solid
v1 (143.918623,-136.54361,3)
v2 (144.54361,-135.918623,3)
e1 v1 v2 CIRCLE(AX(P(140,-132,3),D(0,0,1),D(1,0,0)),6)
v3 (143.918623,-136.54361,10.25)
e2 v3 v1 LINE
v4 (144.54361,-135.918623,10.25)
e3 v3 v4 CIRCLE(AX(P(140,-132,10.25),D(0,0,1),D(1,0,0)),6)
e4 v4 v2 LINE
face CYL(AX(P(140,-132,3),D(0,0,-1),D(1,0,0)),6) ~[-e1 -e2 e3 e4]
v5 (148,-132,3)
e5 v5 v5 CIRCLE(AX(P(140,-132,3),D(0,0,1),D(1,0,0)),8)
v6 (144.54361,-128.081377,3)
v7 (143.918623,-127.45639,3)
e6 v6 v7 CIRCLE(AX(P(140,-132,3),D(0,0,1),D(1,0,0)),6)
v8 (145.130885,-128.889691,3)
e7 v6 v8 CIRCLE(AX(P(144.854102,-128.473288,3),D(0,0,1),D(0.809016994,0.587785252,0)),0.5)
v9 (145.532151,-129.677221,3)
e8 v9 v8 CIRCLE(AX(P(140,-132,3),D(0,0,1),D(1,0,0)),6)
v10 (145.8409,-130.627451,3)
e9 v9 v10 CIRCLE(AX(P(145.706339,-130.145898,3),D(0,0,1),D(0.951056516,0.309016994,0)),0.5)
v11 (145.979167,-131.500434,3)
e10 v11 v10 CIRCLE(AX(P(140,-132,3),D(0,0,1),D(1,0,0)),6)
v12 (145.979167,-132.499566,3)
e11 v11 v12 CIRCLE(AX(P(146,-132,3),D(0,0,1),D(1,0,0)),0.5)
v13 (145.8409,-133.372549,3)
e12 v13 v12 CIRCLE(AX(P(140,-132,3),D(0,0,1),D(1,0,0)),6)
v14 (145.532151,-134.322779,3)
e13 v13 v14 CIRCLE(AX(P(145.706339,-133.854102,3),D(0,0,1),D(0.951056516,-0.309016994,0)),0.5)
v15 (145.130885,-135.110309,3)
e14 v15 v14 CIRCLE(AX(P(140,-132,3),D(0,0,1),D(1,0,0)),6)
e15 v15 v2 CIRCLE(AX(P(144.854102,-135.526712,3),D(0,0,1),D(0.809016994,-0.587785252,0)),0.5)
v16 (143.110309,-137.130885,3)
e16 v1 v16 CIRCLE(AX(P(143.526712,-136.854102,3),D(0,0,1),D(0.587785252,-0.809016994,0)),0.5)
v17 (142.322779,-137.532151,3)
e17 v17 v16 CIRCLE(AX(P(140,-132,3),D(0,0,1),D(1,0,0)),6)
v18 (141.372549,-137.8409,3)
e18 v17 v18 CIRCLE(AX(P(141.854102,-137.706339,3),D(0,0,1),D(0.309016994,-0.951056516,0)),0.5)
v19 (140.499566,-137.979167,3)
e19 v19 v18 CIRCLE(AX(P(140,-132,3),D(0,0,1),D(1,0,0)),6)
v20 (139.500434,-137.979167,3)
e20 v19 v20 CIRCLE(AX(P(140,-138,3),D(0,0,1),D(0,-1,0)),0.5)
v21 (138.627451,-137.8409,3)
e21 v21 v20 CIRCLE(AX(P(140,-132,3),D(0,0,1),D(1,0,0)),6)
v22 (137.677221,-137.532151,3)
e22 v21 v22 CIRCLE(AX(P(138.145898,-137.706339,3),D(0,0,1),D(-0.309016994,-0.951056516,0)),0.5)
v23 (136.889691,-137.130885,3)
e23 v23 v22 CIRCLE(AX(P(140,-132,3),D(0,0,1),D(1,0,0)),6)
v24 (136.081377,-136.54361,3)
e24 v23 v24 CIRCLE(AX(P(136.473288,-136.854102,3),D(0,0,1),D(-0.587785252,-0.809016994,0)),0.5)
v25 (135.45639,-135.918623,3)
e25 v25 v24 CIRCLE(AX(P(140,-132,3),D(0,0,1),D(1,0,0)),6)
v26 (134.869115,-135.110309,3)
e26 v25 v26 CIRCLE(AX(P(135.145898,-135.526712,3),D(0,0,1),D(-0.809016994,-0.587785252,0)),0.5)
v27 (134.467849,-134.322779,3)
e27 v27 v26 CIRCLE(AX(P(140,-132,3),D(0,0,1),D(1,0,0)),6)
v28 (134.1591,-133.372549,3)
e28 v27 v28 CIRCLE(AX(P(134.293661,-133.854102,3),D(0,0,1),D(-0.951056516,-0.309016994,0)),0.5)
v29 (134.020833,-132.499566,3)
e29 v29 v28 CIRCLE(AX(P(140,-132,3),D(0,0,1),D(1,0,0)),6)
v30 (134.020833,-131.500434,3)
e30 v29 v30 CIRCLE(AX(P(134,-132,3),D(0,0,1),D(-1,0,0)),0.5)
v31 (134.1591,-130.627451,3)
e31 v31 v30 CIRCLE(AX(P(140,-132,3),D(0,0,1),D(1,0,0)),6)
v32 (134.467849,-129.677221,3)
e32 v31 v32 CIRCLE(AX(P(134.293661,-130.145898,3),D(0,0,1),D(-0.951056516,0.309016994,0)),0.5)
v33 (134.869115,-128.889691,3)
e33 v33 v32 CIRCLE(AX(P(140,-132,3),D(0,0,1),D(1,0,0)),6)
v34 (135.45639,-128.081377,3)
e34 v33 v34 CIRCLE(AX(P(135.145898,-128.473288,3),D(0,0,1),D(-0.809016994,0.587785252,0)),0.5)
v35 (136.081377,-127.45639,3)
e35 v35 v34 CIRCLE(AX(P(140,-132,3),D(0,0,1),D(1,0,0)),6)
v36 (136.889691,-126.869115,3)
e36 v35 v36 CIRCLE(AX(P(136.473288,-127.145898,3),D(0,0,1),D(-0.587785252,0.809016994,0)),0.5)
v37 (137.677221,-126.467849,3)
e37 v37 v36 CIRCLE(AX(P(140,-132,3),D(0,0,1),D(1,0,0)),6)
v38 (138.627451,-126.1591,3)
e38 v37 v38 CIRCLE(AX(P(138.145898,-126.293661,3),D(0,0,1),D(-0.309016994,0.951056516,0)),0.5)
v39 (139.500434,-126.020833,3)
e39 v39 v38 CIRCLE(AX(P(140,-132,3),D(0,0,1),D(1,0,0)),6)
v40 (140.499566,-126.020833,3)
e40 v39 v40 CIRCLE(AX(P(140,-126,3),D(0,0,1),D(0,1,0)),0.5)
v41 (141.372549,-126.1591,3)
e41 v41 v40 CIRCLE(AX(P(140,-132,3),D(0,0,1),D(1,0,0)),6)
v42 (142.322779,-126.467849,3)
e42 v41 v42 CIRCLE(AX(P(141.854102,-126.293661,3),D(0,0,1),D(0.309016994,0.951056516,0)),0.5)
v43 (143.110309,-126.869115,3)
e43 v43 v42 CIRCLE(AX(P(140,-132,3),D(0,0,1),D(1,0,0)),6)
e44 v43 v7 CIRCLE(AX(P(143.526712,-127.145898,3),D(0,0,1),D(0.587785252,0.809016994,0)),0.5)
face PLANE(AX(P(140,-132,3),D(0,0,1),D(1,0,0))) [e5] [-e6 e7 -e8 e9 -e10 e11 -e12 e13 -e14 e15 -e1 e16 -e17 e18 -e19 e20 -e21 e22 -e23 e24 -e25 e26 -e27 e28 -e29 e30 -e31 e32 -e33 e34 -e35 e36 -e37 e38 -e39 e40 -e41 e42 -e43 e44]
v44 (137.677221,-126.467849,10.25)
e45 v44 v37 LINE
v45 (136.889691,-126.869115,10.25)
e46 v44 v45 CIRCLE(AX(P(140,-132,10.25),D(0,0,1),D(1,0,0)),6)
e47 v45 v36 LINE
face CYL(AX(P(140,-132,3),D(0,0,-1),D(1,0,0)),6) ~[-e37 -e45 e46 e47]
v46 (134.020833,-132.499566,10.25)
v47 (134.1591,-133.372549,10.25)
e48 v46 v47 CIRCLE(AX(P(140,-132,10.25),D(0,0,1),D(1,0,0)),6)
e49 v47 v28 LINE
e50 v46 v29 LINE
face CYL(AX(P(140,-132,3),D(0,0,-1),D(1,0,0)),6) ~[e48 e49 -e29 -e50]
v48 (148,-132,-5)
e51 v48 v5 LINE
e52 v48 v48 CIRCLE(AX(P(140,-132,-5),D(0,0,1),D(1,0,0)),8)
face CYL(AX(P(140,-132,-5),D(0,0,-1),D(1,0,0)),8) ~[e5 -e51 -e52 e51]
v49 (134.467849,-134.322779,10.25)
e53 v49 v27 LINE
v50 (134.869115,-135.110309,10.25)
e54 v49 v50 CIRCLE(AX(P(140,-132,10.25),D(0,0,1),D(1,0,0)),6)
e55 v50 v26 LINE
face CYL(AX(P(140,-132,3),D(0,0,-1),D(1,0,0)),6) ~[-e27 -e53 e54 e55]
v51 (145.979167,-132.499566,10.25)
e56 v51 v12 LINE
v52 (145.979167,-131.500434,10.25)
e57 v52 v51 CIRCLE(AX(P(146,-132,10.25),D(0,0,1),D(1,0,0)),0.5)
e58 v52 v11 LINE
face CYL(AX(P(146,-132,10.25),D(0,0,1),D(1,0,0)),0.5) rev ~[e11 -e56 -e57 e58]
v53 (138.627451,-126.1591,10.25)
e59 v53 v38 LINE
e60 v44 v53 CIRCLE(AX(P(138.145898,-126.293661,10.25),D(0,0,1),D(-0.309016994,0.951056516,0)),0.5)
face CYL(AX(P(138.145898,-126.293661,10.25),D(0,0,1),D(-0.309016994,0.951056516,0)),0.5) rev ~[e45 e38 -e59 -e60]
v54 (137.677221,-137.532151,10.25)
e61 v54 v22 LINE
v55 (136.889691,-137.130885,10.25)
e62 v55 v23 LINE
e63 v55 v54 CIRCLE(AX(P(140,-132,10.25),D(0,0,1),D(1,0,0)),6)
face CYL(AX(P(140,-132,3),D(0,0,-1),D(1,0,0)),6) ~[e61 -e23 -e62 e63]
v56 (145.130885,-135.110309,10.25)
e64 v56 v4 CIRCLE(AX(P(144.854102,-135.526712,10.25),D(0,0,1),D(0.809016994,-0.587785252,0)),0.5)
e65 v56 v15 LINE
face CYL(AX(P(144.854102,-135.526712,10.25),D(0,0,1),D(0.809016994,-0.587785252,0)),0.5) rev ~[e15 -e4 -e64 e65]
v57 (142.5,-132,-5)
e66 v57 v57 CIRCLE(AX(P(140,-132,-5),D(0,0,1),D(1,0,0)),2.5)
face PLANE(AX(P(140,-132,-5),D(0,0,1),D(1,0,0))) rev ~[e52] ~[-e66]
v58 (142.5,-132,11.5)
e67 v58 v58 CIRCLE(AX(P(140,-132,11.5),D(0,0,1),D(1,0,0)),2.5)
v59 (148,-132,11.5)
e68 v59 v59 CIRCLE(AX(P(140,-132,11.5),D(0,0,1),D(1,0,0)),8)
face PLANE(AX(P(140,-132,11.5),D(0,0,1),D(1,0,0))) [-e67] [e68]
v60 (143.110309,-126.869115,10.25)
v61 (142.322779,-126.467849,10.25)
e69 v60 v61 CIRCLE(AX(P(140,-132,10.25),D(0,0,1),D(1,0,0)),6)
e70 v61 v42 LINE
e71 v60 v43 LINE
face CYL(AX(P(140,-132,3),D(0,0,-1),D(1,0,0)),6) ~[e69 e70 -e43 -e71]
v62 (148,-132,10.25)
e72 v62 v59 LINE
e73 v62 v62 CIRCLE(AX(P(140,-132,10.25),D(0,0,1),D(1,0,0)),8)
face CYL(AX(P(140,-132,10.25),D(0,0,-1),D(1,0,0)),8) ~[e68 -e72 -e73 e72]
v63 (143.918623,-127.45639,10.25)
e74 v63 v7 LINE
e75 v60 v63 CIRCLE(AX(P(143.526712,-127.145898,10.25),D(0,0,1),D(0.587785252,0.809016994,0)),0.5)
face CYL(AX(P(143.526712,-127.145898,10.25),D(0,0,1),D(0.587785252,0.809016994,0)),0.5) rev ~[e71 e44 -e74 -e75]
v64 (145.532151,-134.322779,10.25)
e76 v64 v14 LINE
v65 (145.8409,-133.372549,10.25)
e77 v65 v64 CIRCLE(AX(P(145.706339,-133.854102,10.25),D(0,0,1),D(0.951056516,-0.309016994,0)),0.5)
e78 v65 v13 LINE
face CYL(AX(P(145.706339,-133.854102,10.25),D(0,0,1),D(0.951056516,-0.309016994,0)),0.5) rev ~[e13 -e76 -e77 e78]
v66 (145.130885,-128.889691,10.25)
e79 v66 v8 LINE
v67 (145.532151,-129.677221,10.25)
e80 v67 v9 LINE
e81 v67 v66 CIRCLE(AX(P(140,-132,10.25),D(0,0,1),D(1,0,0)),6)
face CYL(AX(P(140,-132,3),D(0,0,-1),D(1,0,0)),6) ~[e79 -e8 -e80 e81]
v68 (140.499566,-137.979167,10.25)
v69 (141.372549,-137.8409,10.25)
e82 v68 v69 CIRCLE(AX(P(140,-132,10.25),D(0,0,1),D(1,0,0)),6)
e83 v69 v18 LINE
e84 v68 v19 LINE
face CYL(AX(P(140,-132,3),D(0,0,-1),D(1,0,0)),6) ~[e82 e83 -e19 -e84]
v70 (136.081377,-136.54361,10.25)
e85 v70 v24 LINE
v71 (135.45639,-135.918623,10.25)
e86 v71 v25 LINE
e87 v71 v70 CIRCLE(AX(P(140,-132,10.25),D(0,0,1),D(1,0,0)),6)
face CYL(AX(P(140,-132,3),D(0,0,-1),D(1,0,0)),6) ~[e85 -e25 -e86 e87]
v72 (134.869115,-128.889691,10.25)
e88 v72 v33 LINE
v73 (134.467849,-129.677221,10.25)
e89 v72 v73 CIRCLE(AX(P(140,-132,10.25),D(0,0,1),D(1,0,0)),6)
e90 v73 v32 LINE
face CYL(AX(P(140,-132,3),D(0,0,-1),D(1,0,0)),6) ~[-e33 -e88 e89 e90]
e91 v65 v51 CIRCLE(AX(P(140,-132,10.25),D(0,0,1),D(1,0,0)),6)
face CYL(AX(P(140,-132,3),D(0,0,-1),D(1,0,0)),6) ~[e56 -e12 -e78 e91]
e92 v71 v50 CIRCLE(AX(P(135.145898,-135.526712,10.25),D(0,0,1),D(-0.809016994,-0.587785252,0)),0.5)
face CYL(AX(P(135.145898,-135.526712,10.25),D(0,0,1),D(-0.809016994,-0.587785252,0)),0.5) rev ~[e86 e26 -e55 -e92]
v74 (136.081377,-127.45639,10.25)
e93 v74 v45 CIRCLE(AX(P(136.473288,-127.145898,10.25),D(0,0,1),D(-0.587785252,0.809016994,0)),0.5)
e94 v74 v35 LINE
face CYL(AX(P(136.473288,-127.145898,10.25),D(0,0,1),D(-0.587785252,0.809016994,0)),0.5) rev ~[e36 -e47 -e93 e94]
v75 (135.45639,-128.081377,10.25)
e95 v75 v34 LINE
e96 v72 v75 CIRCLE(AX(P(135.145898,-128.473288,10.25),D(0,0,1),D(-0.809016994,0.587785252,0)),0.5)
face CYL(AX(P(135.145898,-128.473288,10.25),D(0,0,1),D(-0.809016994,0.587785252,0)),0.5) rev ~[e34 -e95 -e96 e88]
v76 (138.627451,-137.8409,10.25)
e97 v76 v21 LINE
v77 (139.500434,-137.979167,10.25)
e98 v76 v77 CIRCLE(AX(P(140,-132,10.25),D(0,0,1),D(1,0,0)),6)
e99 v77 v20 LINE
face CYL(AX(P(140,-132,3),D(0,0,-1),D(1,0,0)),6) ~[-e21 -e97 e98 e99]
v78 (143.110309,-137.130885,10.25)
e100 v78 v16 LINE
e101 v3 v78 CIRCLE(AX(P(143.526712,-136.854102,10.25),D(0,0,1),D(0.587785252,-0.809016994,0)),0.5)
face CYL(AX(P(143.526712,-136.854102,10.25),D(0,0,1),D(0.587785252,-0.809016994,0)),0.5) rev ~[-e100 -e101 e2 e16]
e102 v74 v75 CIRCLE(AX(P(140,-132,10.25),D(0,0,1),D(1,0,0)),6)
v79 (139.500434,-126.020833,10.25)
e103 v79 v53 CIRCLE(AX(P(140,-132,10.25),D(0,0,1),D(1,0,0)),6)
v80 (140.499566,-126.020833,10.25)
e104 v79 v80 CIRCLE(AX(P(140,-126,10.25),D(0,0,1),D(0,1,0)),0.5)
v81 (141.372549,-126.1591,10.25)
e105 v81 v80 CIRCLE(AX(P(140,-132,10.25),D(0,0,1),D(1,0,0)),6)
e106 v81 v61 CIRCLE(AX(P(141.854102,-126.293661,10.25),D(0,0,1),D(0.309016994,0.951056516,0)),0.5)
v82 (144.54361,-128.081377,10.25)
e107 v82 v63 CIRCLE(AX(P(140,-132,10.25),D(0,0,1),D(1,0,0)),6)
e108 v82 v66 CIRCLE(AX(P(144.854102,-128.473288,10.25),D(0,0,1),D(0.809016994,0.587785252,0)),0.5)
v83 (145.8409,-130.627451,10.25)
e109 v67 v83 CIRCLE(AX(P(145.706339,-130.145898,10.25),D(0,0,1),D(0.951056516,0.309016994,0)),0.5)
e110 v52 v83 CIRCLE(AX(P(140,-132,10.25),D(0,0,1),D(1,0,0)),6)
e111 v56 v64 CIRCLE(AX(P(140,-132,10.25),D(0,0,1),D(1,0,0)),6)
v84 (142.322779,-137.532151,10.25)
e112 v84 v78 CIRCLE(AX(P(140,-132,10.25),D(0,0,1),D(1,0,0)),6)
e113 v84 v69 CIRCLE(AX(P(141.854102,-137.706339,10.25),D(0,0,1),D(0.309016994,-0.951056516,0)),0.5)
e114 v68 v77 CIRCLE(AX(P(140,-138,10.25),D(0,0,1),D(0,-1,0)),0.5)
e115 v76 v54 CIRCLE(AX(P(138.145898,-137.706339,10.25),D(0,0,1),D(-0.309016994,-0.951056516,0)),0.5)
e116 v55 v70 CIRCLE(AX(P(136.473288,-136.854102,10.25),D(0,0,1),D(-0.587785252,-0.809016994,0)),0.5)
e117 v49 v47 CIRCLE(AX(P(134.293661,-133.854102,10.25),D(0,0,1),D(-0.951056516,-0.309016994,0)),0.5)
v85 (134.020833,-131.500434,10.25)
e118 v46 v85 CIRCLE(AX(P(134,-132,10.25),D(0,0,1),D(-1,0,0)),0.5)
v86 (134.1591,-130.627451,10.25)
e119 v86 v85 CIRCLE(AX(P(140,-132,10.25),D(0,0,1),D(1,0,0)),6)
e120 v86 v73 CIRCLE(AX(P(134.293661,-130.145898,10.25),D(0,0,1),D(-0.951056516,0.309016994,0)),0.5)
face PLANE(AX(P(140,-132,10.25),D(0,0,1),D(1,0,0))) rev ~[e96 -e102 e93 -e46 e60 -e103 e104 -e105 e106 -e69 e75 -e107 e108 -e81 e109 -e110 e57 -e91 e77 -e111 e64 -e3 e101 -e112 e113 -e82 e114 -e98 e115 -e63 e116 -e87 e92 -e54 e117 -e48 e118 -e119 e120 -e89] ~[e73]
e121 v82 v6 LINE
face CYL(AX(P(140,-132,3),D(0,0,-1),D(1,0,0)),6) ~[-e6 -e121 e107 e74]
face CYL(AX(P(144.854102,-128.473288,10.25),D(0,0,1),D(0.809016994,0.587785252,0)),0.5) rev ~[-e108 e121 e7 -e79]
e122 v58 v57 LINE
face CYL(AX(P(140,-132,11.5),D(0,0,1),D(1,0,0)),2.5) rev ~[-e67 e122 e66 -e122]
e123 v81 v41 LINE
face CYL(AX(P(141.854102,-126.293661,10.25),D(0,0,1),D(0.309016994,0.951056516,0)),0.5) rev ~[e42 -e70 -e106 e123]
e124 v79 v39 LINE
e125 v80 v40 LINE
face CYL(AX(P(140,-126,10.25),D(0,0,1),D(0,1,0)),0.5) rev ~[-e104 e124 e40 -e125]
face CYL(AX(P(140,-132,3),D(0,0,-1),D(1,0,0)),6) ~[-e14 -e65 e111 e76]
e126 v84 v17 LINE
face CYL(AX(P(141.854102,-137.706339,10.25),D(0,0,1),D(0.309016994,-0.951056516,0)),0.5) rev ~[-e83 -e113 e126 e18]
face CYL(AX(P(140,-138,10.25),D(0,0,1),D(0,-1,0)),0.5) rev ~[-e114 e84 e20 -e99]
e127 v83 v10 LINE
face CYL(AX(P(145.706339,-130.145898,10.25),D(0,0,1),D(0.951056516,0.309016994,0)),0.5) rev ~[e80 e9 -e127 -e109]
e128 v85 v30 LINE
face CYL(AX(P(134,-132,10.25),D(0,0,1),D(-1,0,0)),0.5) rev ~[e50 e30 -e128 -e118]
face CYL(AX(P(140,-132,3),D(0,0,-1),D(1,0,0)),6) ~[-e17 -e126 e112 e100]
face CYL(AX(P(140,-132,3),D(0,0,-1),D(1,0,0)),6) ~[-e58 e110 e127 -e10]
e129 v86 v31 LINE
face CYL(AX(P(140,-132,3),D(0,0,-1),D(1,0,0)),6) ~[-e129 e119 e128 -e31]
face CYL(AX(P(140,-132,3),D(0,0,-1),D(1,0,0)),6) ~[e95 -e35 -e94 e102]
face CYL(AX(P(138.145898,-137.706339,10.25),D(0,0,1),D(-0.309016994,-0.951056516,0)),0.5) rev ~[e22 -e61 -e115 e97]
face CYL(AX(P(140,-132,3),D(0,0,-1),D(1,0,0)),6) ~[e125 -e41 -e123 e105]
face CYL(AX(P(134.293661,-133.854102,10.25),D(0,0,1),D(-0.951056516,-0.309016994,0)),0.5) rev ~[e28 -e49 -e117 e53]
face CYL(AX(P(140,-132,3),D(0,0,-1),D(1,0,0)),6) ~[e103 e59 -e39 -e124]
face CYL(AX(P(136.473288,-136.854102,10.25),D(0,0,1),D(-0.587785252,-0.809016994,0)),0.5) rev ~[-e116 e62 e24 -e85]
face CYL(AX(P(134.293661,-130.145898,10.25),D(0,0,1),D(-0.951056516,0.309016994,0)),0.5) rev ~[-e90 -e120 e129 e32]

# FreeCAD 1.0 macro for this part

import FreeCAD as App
import Part
import Sketcher

doc = App.newDocument("Part")
body = doc.addObject("PartDesign::Body", "Body")

# Sketch on XY plane
sketch1 = body.newObject("Sketcher::SketchObject", "Sketch")
sketch1.AttachmentSupport = (doc.getObject("XY_Plane"), [""])
sketch1.MapMode = "FlatFace"
sketch1.addGeometry(Part.Circle(App.Vector(20, -80, 0), App.Vector(0, 0, 1), 8), False)
sketch1.addConstraint(Sketcher.Constraint("Diameter", 0, 16.0))
sketch1.addConstraint(Sketcher.Constraint("DistanceX", -1, 1, 0, 3, 20.0))
sketch1.addConstraint(Sketcher.Constraint("DistanceY", 0, 3, -1, 1, 80.0))
pad1 = body.newObject("PartDesign::Pad", "Pad")
pad1.Profile = sketch1
pad1.Length = 8
pad1.Reversed = True

# Sketch on XY plane
sketch2 = body.newObject("Sketcher::SketchObject", "Sketch001")
sketch2.AttachmentSupport = (doc.getObject("XY_Plane"), [""])
sketch2.MapMode = "FlatFace"
sketch2.AttachmentOffset = App.Placement(App.Vector(0, 0, -8), App.Rotation())
sketch2.addGeometry(Part.Circle(App.Vector(20, -80, 0), App.Vector(0, 0, 1), 6), False)
sketch2.addConstraint(Sketcher.Constraint("Diameter", 0, 12.0))
sketch2.addConstraint(Sketcher.Constraint("DistanceX", -1, 1, 0, 3, 20.0))
sketch2.addConstraint(Sketcher.Constraint("DistanceY", 0, 3, -1, 1, 80.0))
pad2 = body.newObject("PartDesign::Pad", "Pad001")
pad2.Profile = sketch2
pad2.Length = 7.25
pad2.Reversed = True

# Sketch on XY plane
sketch3 = body.newObject("Sketcher::SketchObject", "Sketch002")
sketch3.AttachmentSupport = (doc.getObject("XY_Plane"), [""])
sketch3.MapMode = "FlatFace"
sketch3.AttachmentOffset = App.Placement(App.Vector(0, 0, -15.25), App.Rotation())
sketch3.addGeometry(Part.Circle(App.Vector(26, -80, 0), App.Vector(0, 0, 1), 0.5), False)
sketch3.addConstraint(Sketcher.Constraint("Diameter", 0, 1.0))
sketch3.addConstraint(Sketcher.Constraint("DistanceX", -1, 1, 0, 3, 26.0))
sketch3.addConstraint(Sketcher.Constraint("DistanceY", 0, 3, -1, 1, 80.0))
pocket1 = body.newObject("PartDesign::Pocket", "Pocket")
pocket1.Profile = sketch3
pocket1.Length = 7.25
pocket1.Reversed = True
doc.recompute()

datumline = body.newObject("PartDesign::Line", "DatumLine")
datumline.Placement = App.Placement(App.Vector(20, -80, 0), App.Rotation(App.Vector(0, 0, 1), App.Vector(0, 0, -1)))
polarpattern = body.newObject("PartDesign::PolarPattern", "PolarPattern")
polarpattern.Originals = [pocket1]
polarpattern.Axis = (datumline, [""])
polarpattern.Angle = 360
polarpattern.Occurrences = 20
body.Tip = polarpattern

# Sketch on XY plane
sketch4 = body.newObject("Sketcher::SketchObject", "Sketch003")
sketch4.AttachmentSupport = (doc.getObject("XY_Plane"), [""])
sketch4.MapMode = "FlatFace"
sketch4.AttachmentOffset = App.Placement(App.Vector(0, 0, -15.25), App.Rotation())
sketch4.addGeometry(Part.Circle(App.Vector(20, -80, 0), App.Vector(0, 0, 1), 8), False)
sketch4.addConstraint(Sketcher.Constraint("Diameter", 0, 16.0))
sketch4.addConstraint(Sketcher.Constraint("DistanceX", -1, 1, 0, 3, 20.0))
sketch4.addConstraint(Sketcher.Constraint("DistanceY", 0, 3, -1, 1, 80.0))
pad3 = body.newObject("PartDesign::Pad", "Pad002")
pad3.Profile = sketch4
pad3.Length = 1.25
pad3.Reversed = True

# Sketch on XY plane
sketch5 = body.newObject("Sketcher::SketchObject", "Sketch004")
sketch5.AttachmentSupport = (doc.getObject("XY_Plane"), [""])
sketch5.MapMode = "FlatFace"
sketch5.AttachmentOffset = App.Placement(App.Vector(0, 0, -16.5), App.Rotation())
sketch5.addGeometry(Part.Circle(App.Vector(20, -80, 0), App.Vector(0, 0, 1), 2.5), False)
sketch5.addConstraint(Sketcher.Constraint("Diameter", 0, 5.0))
sketch5.addConstraint(Sketcher.Constraint("DistanceX", -1, 1, 0, 3, 20.0))
sketch5.addConstraint(Sketcher.Constraint("DistanceY", 0, 3, -1, 1, 80.0))
pocket2 = body.newObject("PartDesign::Pocket", "Pocket001")
pocket2.Profile = sketch5
pocket2.Length = 16.5
pocket2.Reversed = True
body2 = doc.addObject("PartDesign::Body", "Body001")
doc.recompute()

body.Placement = App.Placement(App.Vector(120, -212, -5), App.Rotation(App.Vector(-1, 0, 0), 180))
boolean = body2.newObject("PartDesign::Boolean", "Boolean")
boolean.Type = "Fuse"
boolean.addObjects([body])

doc.recompute()
